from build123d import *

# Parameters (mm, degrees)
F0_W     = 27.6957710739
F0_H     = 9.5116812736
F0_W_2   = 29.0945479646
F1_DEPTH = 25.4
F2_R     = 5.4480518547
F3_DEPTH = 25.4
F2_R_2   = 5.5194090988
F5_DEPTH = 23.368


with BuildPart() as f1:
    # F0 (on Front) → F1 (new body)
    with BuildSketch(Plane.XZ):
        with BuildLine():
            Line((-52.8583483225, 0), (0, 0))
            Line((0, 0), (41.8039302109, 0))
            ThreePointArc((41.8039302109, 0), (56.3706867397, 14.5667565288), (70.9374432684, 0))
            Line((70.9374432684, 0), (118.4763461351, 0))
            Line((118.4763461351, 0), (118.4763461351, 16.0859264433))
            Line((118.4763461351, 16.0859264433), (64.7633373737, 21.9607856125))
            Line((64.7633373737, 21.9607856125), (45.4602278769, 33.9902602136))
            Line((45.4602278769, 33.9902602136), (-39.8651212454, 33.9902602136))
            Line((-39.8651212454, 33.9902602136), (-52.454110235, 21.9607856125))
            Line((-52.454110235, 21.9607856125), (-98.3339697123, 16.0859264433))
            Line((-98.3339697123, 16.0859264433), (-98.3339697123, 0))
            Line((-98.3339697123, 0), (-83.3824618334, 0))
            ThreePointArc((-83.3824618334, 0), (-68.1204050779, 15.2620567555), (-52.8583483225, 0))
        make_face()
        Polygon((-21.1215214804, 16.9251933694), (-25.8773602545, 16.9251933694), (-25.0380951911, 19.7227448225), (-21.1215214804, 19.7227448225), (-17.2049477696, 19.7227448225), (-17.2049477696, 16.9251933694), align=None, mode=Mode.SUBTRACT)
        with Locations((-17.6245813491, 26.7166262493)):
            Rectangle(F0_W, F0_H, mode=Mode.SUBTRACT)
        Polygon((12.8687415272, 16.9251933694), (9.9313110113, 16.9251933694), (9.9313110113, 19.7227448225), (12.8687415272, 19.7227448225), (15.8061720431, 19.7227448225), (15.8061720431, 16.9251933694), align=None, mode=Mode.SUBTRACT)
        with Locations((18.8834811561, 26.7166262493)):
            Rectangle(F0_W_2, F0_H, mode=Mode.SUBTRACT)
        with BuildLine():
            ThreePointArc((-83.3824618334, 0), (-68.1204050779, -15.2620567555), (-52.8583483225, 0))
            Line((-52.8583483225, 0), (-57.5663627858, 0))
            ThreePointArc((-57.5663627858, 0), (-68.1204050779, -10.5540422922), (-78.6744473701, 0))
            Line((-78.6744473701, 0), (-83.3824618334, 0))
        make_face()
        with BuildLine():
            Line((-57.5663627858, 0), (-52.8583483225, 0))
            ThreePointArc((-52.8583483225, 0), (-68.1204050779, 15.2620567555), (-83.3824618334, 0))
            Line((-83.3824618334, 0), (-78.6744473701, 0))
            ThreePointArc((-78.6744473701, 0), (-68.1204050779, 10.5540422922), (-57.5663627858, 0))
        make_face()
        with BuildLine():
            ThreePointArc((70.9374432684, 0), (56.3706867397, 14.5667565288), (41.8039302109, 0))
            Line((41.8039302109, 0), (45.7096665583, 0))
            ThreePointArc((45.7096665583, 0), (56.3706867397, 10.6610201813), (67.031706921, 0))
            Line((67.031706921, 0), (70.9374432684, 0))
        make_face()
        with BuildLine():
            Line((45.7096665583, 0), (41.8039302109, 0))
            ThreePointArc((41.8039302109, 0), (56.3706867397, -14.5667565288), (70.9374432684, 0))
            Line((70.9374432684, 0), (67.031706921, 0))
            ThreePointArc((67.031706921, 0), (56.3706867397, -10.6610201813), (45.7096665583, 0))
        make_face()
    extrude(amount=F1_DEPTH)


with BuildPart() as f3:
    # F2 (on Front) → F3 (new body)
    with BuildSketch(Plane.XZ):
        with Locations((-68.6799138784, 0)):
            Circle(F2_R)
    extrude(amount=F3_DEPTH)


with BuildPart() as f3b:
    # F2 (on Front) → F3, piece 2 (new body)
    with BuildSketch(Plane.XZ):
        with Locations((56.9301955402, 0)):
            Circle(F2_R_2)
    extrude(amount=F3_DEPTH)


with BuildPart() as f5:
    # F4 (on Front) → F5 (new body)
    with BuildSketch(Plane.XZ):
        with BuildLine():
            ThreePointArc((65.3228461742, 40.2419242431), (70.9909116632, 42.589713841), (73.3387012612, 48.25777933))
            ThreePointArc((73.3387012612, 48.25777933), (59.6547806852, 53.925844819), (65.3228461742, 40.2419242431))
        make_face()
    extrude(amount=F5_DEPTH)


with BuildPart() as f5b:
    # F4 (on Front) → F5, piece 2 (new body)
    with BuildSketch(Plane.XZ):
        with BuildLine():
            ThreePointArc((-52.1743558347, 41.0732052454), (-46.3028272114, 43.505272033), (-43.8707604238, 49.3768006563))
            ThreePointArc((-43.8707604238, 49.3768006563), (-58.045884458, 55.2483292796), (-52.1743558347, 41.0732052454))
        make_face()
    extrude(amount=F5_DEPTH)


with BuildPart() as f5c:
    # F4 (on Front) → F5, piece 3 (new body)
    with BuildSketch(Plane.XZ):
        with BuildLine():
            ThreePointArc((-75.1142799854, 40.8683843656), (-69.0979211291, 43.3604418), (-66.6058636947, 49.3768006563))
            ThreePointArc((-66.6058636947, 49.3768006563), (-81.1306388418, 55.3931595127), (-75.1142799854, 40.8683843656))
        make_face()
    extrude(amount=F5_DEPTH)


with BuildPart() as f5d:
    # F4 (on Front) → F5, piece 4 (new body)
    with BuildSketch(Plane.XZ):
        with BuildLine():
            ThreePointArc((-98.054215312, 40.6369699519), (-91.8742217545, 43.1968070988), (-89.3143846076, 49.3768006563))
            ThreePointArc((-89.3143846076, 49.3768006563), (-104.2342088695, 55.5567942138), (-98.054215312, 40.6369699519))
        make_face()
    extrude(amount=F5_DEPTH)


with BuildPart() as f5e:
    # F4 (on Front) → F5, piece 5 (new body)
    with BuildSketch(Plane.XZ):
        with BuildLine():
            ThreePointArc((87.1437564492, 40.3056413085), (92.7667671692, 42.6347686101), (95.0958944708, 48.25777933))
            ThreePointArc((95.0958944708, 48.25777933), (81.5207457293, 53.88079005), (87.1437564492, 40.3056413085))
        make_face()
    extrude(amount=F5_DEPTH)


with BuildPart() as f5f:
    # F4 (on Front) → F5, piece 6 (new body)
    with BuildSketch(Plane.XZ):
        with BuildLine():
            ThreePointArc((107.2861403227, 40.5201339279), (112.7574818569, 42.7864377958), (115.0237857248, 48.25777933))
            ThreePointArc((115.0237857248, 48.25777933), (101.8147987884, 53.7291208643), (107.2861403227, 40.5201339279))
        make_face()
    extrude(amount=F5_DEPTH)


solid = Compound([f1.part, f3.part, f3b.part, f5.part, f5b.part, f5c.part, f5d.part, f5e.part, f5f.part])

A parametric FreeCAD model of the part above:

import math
import FreeCAD as App
import Part
import Sketcher

V = App.Vector
Q = App.Units.Quantity


def add_polygon(sketch, points):
    """Adds a closed chain of lines whose ends are joined by coincident constraints."""
    first, n = sketch.GeometryCount, len(points)
    for a, b in zip(points, points[1:] + points[:1]):
        sketch.addGeometry(Part.LineSegment(App.Vector(*a, 0), App.Vector(*b, 0)), False)
    for i in range(n):
        sketch.addConstraint(Sketcher.Constraint("Coincident", first + i, 2, first + (i + 1) % n, 1))

doc = App.newDocument("Part")
body = doc.addObject("PartDesign::Body", "Body")

sketch1 = body.newObject("Sketcher::SketchObject", "Sketch")
sketch1.AttachmentSupport = (doc.getObject("XZ_Plane"), [""])
sketch1.MapMode = "FlatFace"
sketch1.addGeometry(Part.LineSegment(V(-52.9, 0, 0), V(41.8, 0, 0)), False)
sketch1.addGeometry(Part.ArcOfCircle(Part.Circle(V(56.4, 0, 0), V(0, 0, 1), 14.6), math.radians(180), math.radians(360)), False)
sketch1.addGeometry(Part.LineSegment(V(70.9, 0, 0), V(118.5, 0, 0)), False)
sketch1.addGeometry(Part.LineSegment(V(118.5, 0, 0), V(118.5, 16.1, 0)), False)
sketch1.addGeometry(Part.LineSegment(V(118.5, 16.1, 0), V(64.8, 22, 0)), False)
sketch1.addGeometry(Part.LineSegment(V(64.8, 22, 0), V(45.5, 34, 0)), False)
sketch1.addGeometry(Part.LineSegment(V(45.5, 34, 0), V(-39.9, 34, 0)), False)
sketch1.addGeometry(Part.LineSegment(V(-39.9, 34, 0), V(-52.5, 22, 0)), False)
sketch1.addGeometry(Part.LineSegment(V(-52.5, 22, 0), V(-98.3, 16.1, 0)), False)
sketch1.addGeometry(Part.LineSegment(V(-98.3, 16.1, 0), V(-98.3, 0, 0)), False)
sketch1.addGeometry(Part.LineSegment(V(-98.3, 0, 0), V(-83.4, 0, 0)), False)
sketch1.addGeometry(Part.ArcOfCircle(Part.Circle(V(-68.1, 0, 0), V(0, 0, 1), 15.3), math.radians(180), math.radians(360)), False)
sketch1.addGeometry(Part.ArcOfCircle(Part.Circle(V(56.4, 0, 0), V(0, 0, 1), 10.7), math.radians(0), math.radians(180)), False)
sketch1.addGeometry(Part.ArcOfCircle(Part.Circle(V(56.4, 0, 0), V(0, 0, 1), 10.7), math.radians(180), math.radians(360)), False)
add_polygon(sketch1, [(-17.2, 16.9), (-25.9, 16.9), (-25, 19.7), (-17.2, 19.7)])
add_polygon(sketch1, [(15.8, 16.9), (9.9, 16.9), (9.9, 19.7), (15.8, 19.7)])
add_polygon(sketch1, [(-3.8, 22), (-31.5, 22), (-31.5, 31.5), (-3.8, 31.5)])
add_polygon(sketch1, [(33.4, 22), (4.3, 22), (4.3, 31.5), (33.4, 31.5)])
sketch1.addGeometry(Part.ArcOfCircle(Part.Circle(V(-68.1, 0, 0), V(0, 0, 1), 10.6), math.radians(0), math.radians(180)), False)
sketch1.addGeometry(Part.ArcOfCircle(Part.Circle(V(-68.1, 0, 0), V(0, 0, 1), 10.6), math.radians(180), math.radians(360)), False)
sketch1.addConstraint([
    Sketcher.Constraint("Coincident", 0, 2, 1, 1),
    Sketcher.Constraint("Coincident", 1, 2, 2, 1),
    Sketcher.Constraint("Coincident", 2, 2, 3, 1),
    Sketcher.Constraint("Coincident", 3, 2, 4, 1),
    Sketcher.Constraint("Coincident", 4, 2, 5, 1),
    Sketcher.Constraint("Coincident", 5, 2, 6, 1),
    Sketcher.Constraint("Coincident", 6, 2, 7, 1),
    Sketcher.Constraint("Coincident", 7, 2, 8, 1),
    Sketcher.Constraint("Coincident", 8, 2, 9, 1),
    Sketcher.Constraint("Coincident", 9, 2, 10, 1),
    Sketcher.Constraint("Coincident", 10, 2, 11, 1),
    Sketcher.Constraint("Coincident", 11, 2, 0, 1),
    Sketcher.Constraint("Tangent", 12, 1, 13, 2),
    Sketcher.Constraint("Coincident", 13, 1, 12, 2),
    Sketcher.Constraint("Tangent", 30, 1, 31, 2),
    Sketcher.Constraint("Coincident", 31, 1, 30, 2),
    Sketcher.Constraint("Horizontal", 0),
    Sketcher.Constraint("Horizontal", 2),
    Sketcher.Constraint("Vertical", 3),
    Sketcher.Constraint("Horizontal", 6),
    Sketcher.Constraint("Vertical", 9),
    Sketcher.Constraint("Horizontal", 10),
    Sketcher.Constraint("Horizontal", 14),
    Sketcher.Constraint("Horizontal", 16),
    Sketcher.Constraint("Vertical", 17),
    Sketcher.Constraint("Horizontal", 18),
    Sketcher.Constraint("Vertical", 19),
    Sketcher.Constraint("Horizontal", 20),
    Sketcher.Constraint("Vertical", 21),
    Sketcher.Constraint("Horizontal", 22),
    Sketcher.Constraint("Vertical", 23),
    Sketcher.Constraint("Horizontal", 24),
    Sketcher.Constraint("Vertical", 25),
    Sketcher.Constraint("Horizontal", 26),
    Sketcher.Constraint("Vertical", 27),
    Sketcher.Constraint("Horizontal", 28),
    Sketcher.Constraint("Vertical", 29),
    Sketcher.Constraint("Coincident", 12, 3, 1, 3),
    Sketcher.Constraint("Coincident", 30, 3, 11, 3),
    Sketcher.Constraint("PointOnObject", 1, 3, -1),
    Sketcher.Constraint("PointOnObject", 11, 3, -1),
    Sketcher.Constraint("PointOnObject", 0, 2, -1),
    Sketcher.Constraint("PointOnObject", 1, 2, -1),
    Sketcher.Constraint("PointOnObject", 9, 2, -1),
    Sketcher.Constraint("PointOnObject", 12, 1, -1),
    Sketcher.Constraint("PointOnObject", 13, 1, -1),
    Sketcher.Constraint("PointOnObject", 30, 1, -1),
    Sketcher.Constraint("PointOnObject", 31, 1, -1),
    Sketcher.Constraint("Horizontal", 4, 2, 7, 2),
    Sketcher.Constraint("Horizontal", 3, 2, 8, 2),
    Sketcher.Constraint("Horizontal", 17, 2, 18, 2),
    Sketcher.Constraint("Horizontal", 16, 2, 19, 2),
    Sketcher.Constraint("Horizontal", 7, 2, 22, 2),
    Sketcher.Constraint("Horizontal", 25, 2, 26, 2),
    Sketcher.Constraint("Horizontal", 24, 2, 27, 2),
    Sketcher.Constraint("Radius", 12, Q("10.66102 mm")),
    Sketcher.Constraint("Radius", 1, Q("14.566757 mm")),
    Sketcher.Constraint("Radius", 11, Q("15.262057 mm")),
    Sketcher.Constraint("Radius", 30, Q("10.554042 mm")),
    Sketcher.Constraint("DistanceX", 0, 1, 0, 2, Q("94.662279 mm")),
    Sketcher.Constraint("DistanceX", 6, 2, 6, 1, Q("85.325349 mm")),
    Sketcher.Constraint("DistanceX", 18, 2, 18, 1, Q("5.874861 mm")),
    Sketcher.Constraint("DistanceX", 22, 2, 22, 1, Q("27.695771 mm")),
    Sketcher.Constraint("DistanceY", 17, 2, 17, 1, Q("2.797551 mm")),
    Sketcher.Constraint("DistanceY", 23, 1, 23, 2, Q("9.511681 mm")),
    Sketcher.Constraint("DistanceX", 11, 2, 16, 2, Q("35.653401 mm")),
    Sketcher.Constraint("Distance", 15, Q("2.920729 mm")),
    Sketcher.Constraint("DistanceX", 2, 1, 2, 2, Q("47.538903 mm")),
    Sketcher.Constraint("DistanceX", 10, 1, 10, 2, Q("14.951508 mm")),
    Sketcher.Constraint("DistanceX", 14, 2, 14, 1, Q("8.672412 mm")),
    Sketcher.Constraint("DistanceX", 26, 2, 26, 1, Q("29.094548 mm")),
    Sketcher.Constraint("DistanceY", 3, 1, 3, 2, Q("16.085926 mm")),
    Sketcher.Constraint("DistanceX", -1, 1, 0, 2, Q("41.80393 mm")),
    Sketcher.Constraint("DistanceY", -1, 1, 5, 2, Q("33.99026 mm")),
    Sketcher.Constraint("DistanceX", 6, 2, -1, 1, Q("39.865121 mm")),
    Sketcher.Constraint("DistanceX", 7, 2, -1, 1, Q("52.45411 mm")),
    Sketcher.Constraint("DistanceX", -1, 1, 18, 2, Q("9.931311 mm")),
    Sketcher.Constraint("DistanceX", 1, 3, 4, 2, Q("8.392651 mm")),
    Sketcher.Constraint("DistanceY", 8, 2, 7, 2, Q("5.874859 mm")),
    Sketcher.Constraint("DistanceY", 15, 2, 7, 2, Q("2.238041 mm")),
    Sketcher.Constraint("DistanceX", 22, 2, 15, 2, Q("6.434372 mm")),
    Sketcher.Constraint("DistanceX", -1, 1, 26, 2, Q("4.336207 mm")),
])
pad1 = body.newObject("PartDesign::Pad", "Pad")
pad1.Profile = sketch1
pad1.Length = Q("1 in")
body2 = doc.addObject("PartDesign::Body", "Body001")

sketch2 = body2.newObject("Sketcher::SketchObject", "Sketch001")
sketch2.AttachmentSupport = (doc.getObject("XZ_Plane001"), [""])
sketch2.MapMode = "FlatFace"
sketch2.addGeometry(Part.Circle(V(-69, 0, 0), V(0, 0, 1), 5), False)
sketch2.addConstraint([
    Sketcher.Constraint("PointOnObject", 0, 3, -1),
    Sketcher.Constraint("Diameter", 0, Q("10.896104 mm")),
    Sketcher.Constraint("DistanceX", 0, 3, -1, 1, Q("68.679914 mm")),
])
pad2 = body2.newObject("PartDesign::Pad", "Pad001")
pad2.Profile = sketch2
pad2.Length = Q("1 in")
body3 = doc.addObject("PartDesign::Body", "Body002")

sketch3 = body3.newObject("Sketcher::SketchObject", "Sketch002")
sketch3.AttachmentSupport = (doc.getObject("XZ_Plane002"), [""])
sketch3.MapMode = "FlatFace"
sketch3.addGeometry(Part.Circle(V(57, 0, 0), V(0, 0, 1), 6), False)
sketch3.addConstraint([
    Sketcher.Constraint("PointOnObject", 0, 3, -1),
    Sketcher.Constraint("Diameter", 0, Q("11.038818 mm")),
    Sketcher.Constraint("DistanceX", -1, 1, 0, 3, Q("56.930196 mm")),
])
pad3 = body3.newObject("PartDesign::Pad", "Pad002")
pad3.Profile = sketch3
pad3.Length = Q("1 in")
body4 = doc.addObject("PartDesign::Body", "Body003")

sketch4 = body4.newObject("Sketcher::SketchObject", "Sketch003")
sketch4.AttachmentSupport = (doc.getObject("XZ_Plane003"), [""])
sketch4.MapMode = "FlatFace"
sketch4.addGeometry([
    Part.ArcOfCircle(Part.Circle(V(65, 48, 0), V(0, 0, 1), 8), math.radians(-90), math.radians(0)),
    Part.ArcOfCircle(Part.Circle(V(65, 48, 0), V(0, 0, 1), 8), math.radians(0), math.radians(270)),
], False)
sketch4.addConstraint([
    Sketcher.Constraint("Tangent", 0, 1, 1, 2),
    Sketcher.Constraint("Coincident", 1, 1, 0, 2),
    Sketcher.Constraint("Horizontal", 0, 3, 1, 1),
    Sketcher.Constraint("Vertical", 1, 3, 0, 1),
    Sketcher.Constraint("Radius", 0, Q("8.015855 mm")),
    Sketcher.Constraint("DistanceX", -1, 1, 1, 1, Q("73.338701 mm")),
    Sketcher.Constraint("DistanceY", -1, 1, 0, 3, Q("48.257779 mm")),
])
pad4 = body4.newObject("PartDesign::Pad", "Pad003")
pad4.Profile = sketch4
pad4.Length = Q("0.92 in")
body5 = doc.addObject("PartDesign::Body", "Body004")

sketch5 = body5.newObject("Sketcher::SketchObject", "Sketch004")
sketch5.AttachmentSupport = (doc.getObject("XZ_Plane004"), [""])
sketch5.MapMode = "FlatFace"
sketch5.addGeometry([
    Part.ArcOfCircle(Part.Circle(V(-52, 49, 0), V(0, 0, 1), 8), math.radians(-90), math.radians(0)),
    Part.ArcOfCircle(Part.Circle(V(-52, 49, 0), V(0, 0, 1), 8), math.radians(0), math.radians(270)),
], False)
sketch5.addConstraint([
    Sketcher.Constraint("Tangent", 0, 1, 1, 2),
    Sketcher.Constraint("Coincident", 1, 1, 0, 2),
    Sketcher.Constraint("Horizontal", 0, 3, 1, 1),
    Sketcher.Constraint("Vertical", 1, 3, 0, 1),
    Sketcher.Constraint("Radius", 0, Q("8.303595 mm")),
    Sketcher.Constraint("DistanceY", -1, 1, 0, 3, Q("49.376801 mm")),
    Sketcher.Constraint("DistanceX", 1, 1, -1, 1, Q("43.87076 mm")),
])
pad5 = body5.newObject("PartDesign::Pad", "Pad004")
pad5.Profile = sketch5
pad5.Length = Q("0.92 in")
body6 = doc.addObject("PartDesign::Body", "Body005")

sketch6 = body6.newObject("Sketcher::SketchObject", "Sketch005")
sketch6.AttachmentSupport = (doc.getObject("XZ_Plane005"), [""])
sketch6.MapMode = "FlatFace"
sketch6.addGeometry([
    Part.ArcOfCircle(Part.Circle(V(-75, 49, 0), V(0, 0, 1), 9), math.radians(-90), math.radians(0)),
    Part.ArcOfCircle(Part.Circle(V(-75, 49, 0), V(0, 0, 1), 9), math.radians(0), math.radians(270)),
], False)
sketch6.addConstraint([
    Sketcher.Constraint("Tangent", 0, 1, 1, 2),
    Sketcher.Constraint("Coincident", 1, 1, 0, 2),
    Sketcher.Constraint("Horizontal", 0, 3, 1, 1),
    Sketcher.Constraint("Vertical", 1, 3, 0, 1),
    Sketcher.Constraint("Radius", 0, Q("8.508416 mm")),
    Sketcher.Constraint("DistanceY", -1, 1, 0, 3, Q("49.376801 mm")),
    Sketcher.Constraint("DistanceX", 0, 3, -1, 1, Q("75.11428 mm")),
])
pad6 = body6.newObject("PartDesign::Pad", "Pad005")
pad6.Profile = sketch6
pad6.Length = Q("0.92 in")
body7 = doc.addObject("PartDesign::Body", "Body006")

sketch7 = body7.newObject("Sketcher::SketchObject", "Sketch006")
sketch7.AttachmentSupport = (doc.getObject("XZ_Plane006"), [""])
sketch7.MapMode = "FlatFace"
sketch7.addGeometry([
    Part.ArcOfCircle(Part.Circle(V(-98, 49, 0), V(0, 0, 1), 9), math.radians(-90), math.radians(0)),
    Part.ArcOfCircle(Part.Circle(V(-98, 49, 0), V(0, 0, 1), 9), math.radians(0), math.radians(270)),
], False)
sketch7.addConstraint([
    Sketcher.Constraint("Tangent", 0, 1, 1, 2),
    Sketcher.Constraint("Coincident", 1, 1, 0, 2),
    Sketcher.Constraint("Horizontal", 0, 3, 1, 1),
    Sketcher.Constraint("Vertical", 1, 3, 0, 1),
    Sketcher.Constraint("Radius", 0, Q("8.739831 mm")),
    Sketcher.Constraint("DistanceY", -1, 1, 0, 3, Q("49.376801 mm")),
    Sketcher.Constraint("DistanceX", 0, 3, -1, 1, Q("98.054215 mm")),
])
pad7 = body7.newObject("PartDesign::Pad", "Pad006")
pad7.Profile = sketch7
pad7.Length = Q("0.92 in")
body8 = doc.addObject("PartDesign::Body", "Body007")

sketch8 = body8.newObject("Sketcher::SketchObject", "Sketch007")
sketch8.AttachmentSupport = (doc.getObject("XZ_Plane007"), [""])
sketch8.MapMode = "FlatFace"
sketch8.addGeometry([
    Part.ArcOfCircle(Part.Circle(V(87, 48, 0), V(0, 0, 1), 8), math.radians(-90), math.radians(0)),
    Part.ArcOfCircle(Part.Circle(V(87, 48, 0), V(0, 0, 1), 8), math.radians(0), math.radians(270)),
], False)
sketch8.addConstraint([
    Sketcher.Constraint("Tangent", 0, 1, 1, 2),
    Sketcher.Constraint("Coincident", 1, 1, 0, 2),
    Sketcher.Constraint("Horizontal", 0, 3, 1, 1),
    Sketcher.Constraint("Vertical", 1, 3, 0, 1),
    Sketcher.Constraint("Radius", 0, Q("7.952138 mm")),
    Sketcher.Constraint("DistanceY", -1, 1, 0, 3, Q("48.257779 mm")),
    Sketcher.Constraint("DistanceX", -1, 1, 0, 3, Q("87.143756 mm")),
])
pad8 = body8.newObject("PartDesign::Pad", "Pad007")
pad8.Profile = sketch8
pad8.Length = Q("0.92 in")
body9 = doc.addObject("PartDesign::Body", "Body008")

sketch9 = body9.newObject("Sketcher::SketchObject", "Sketch008")
sketch9.AttachmentSupport = (doc.getObject("XZ_Plane008"), [""])
sketch9.MapMode = "FlatFace"
sketch9.addGeometry([
    Part.ArcOfCircle(Part.Circle(V(107, 48, 0), V(0, 0, 1), 8), math.radians(-90), math.radians(0)),
    Part.ArcOfCircle(Part.Circle(V(107, 48, 0), V(0, 0, 1), 8), math.radians(0), math.radians(270)),
], False)
sketch9.addConstraint([
    Sketcher.Constraint("Tangent", 0, 1, 1, 2),
    Sketcher.Constraint("Coincident", 1, 1, 0, 2),
    Sketcher.Constraint("Horizontal", 0, 3, 1, 1),
    Sketcher.Constraint("Vertical", 1, 3, 0, 1),
    Sketcher.Constraint("Radius", 0, Q("7.737645 mm")),
    Sketcher.Constraint("DistanceX", -1, 1, 0, 3, Q("107.28614 mm")),
    Sketcher.Constraint("DistanceY", -1, 1, 0, 3, Q("48.257779 mm")),
])
pad9 = body9.newObject("PartDesign::Pad", "Pad008")
pad9.Profile = sketch9
pad9.Length = Q("0.92 in")

doc.recompute()
